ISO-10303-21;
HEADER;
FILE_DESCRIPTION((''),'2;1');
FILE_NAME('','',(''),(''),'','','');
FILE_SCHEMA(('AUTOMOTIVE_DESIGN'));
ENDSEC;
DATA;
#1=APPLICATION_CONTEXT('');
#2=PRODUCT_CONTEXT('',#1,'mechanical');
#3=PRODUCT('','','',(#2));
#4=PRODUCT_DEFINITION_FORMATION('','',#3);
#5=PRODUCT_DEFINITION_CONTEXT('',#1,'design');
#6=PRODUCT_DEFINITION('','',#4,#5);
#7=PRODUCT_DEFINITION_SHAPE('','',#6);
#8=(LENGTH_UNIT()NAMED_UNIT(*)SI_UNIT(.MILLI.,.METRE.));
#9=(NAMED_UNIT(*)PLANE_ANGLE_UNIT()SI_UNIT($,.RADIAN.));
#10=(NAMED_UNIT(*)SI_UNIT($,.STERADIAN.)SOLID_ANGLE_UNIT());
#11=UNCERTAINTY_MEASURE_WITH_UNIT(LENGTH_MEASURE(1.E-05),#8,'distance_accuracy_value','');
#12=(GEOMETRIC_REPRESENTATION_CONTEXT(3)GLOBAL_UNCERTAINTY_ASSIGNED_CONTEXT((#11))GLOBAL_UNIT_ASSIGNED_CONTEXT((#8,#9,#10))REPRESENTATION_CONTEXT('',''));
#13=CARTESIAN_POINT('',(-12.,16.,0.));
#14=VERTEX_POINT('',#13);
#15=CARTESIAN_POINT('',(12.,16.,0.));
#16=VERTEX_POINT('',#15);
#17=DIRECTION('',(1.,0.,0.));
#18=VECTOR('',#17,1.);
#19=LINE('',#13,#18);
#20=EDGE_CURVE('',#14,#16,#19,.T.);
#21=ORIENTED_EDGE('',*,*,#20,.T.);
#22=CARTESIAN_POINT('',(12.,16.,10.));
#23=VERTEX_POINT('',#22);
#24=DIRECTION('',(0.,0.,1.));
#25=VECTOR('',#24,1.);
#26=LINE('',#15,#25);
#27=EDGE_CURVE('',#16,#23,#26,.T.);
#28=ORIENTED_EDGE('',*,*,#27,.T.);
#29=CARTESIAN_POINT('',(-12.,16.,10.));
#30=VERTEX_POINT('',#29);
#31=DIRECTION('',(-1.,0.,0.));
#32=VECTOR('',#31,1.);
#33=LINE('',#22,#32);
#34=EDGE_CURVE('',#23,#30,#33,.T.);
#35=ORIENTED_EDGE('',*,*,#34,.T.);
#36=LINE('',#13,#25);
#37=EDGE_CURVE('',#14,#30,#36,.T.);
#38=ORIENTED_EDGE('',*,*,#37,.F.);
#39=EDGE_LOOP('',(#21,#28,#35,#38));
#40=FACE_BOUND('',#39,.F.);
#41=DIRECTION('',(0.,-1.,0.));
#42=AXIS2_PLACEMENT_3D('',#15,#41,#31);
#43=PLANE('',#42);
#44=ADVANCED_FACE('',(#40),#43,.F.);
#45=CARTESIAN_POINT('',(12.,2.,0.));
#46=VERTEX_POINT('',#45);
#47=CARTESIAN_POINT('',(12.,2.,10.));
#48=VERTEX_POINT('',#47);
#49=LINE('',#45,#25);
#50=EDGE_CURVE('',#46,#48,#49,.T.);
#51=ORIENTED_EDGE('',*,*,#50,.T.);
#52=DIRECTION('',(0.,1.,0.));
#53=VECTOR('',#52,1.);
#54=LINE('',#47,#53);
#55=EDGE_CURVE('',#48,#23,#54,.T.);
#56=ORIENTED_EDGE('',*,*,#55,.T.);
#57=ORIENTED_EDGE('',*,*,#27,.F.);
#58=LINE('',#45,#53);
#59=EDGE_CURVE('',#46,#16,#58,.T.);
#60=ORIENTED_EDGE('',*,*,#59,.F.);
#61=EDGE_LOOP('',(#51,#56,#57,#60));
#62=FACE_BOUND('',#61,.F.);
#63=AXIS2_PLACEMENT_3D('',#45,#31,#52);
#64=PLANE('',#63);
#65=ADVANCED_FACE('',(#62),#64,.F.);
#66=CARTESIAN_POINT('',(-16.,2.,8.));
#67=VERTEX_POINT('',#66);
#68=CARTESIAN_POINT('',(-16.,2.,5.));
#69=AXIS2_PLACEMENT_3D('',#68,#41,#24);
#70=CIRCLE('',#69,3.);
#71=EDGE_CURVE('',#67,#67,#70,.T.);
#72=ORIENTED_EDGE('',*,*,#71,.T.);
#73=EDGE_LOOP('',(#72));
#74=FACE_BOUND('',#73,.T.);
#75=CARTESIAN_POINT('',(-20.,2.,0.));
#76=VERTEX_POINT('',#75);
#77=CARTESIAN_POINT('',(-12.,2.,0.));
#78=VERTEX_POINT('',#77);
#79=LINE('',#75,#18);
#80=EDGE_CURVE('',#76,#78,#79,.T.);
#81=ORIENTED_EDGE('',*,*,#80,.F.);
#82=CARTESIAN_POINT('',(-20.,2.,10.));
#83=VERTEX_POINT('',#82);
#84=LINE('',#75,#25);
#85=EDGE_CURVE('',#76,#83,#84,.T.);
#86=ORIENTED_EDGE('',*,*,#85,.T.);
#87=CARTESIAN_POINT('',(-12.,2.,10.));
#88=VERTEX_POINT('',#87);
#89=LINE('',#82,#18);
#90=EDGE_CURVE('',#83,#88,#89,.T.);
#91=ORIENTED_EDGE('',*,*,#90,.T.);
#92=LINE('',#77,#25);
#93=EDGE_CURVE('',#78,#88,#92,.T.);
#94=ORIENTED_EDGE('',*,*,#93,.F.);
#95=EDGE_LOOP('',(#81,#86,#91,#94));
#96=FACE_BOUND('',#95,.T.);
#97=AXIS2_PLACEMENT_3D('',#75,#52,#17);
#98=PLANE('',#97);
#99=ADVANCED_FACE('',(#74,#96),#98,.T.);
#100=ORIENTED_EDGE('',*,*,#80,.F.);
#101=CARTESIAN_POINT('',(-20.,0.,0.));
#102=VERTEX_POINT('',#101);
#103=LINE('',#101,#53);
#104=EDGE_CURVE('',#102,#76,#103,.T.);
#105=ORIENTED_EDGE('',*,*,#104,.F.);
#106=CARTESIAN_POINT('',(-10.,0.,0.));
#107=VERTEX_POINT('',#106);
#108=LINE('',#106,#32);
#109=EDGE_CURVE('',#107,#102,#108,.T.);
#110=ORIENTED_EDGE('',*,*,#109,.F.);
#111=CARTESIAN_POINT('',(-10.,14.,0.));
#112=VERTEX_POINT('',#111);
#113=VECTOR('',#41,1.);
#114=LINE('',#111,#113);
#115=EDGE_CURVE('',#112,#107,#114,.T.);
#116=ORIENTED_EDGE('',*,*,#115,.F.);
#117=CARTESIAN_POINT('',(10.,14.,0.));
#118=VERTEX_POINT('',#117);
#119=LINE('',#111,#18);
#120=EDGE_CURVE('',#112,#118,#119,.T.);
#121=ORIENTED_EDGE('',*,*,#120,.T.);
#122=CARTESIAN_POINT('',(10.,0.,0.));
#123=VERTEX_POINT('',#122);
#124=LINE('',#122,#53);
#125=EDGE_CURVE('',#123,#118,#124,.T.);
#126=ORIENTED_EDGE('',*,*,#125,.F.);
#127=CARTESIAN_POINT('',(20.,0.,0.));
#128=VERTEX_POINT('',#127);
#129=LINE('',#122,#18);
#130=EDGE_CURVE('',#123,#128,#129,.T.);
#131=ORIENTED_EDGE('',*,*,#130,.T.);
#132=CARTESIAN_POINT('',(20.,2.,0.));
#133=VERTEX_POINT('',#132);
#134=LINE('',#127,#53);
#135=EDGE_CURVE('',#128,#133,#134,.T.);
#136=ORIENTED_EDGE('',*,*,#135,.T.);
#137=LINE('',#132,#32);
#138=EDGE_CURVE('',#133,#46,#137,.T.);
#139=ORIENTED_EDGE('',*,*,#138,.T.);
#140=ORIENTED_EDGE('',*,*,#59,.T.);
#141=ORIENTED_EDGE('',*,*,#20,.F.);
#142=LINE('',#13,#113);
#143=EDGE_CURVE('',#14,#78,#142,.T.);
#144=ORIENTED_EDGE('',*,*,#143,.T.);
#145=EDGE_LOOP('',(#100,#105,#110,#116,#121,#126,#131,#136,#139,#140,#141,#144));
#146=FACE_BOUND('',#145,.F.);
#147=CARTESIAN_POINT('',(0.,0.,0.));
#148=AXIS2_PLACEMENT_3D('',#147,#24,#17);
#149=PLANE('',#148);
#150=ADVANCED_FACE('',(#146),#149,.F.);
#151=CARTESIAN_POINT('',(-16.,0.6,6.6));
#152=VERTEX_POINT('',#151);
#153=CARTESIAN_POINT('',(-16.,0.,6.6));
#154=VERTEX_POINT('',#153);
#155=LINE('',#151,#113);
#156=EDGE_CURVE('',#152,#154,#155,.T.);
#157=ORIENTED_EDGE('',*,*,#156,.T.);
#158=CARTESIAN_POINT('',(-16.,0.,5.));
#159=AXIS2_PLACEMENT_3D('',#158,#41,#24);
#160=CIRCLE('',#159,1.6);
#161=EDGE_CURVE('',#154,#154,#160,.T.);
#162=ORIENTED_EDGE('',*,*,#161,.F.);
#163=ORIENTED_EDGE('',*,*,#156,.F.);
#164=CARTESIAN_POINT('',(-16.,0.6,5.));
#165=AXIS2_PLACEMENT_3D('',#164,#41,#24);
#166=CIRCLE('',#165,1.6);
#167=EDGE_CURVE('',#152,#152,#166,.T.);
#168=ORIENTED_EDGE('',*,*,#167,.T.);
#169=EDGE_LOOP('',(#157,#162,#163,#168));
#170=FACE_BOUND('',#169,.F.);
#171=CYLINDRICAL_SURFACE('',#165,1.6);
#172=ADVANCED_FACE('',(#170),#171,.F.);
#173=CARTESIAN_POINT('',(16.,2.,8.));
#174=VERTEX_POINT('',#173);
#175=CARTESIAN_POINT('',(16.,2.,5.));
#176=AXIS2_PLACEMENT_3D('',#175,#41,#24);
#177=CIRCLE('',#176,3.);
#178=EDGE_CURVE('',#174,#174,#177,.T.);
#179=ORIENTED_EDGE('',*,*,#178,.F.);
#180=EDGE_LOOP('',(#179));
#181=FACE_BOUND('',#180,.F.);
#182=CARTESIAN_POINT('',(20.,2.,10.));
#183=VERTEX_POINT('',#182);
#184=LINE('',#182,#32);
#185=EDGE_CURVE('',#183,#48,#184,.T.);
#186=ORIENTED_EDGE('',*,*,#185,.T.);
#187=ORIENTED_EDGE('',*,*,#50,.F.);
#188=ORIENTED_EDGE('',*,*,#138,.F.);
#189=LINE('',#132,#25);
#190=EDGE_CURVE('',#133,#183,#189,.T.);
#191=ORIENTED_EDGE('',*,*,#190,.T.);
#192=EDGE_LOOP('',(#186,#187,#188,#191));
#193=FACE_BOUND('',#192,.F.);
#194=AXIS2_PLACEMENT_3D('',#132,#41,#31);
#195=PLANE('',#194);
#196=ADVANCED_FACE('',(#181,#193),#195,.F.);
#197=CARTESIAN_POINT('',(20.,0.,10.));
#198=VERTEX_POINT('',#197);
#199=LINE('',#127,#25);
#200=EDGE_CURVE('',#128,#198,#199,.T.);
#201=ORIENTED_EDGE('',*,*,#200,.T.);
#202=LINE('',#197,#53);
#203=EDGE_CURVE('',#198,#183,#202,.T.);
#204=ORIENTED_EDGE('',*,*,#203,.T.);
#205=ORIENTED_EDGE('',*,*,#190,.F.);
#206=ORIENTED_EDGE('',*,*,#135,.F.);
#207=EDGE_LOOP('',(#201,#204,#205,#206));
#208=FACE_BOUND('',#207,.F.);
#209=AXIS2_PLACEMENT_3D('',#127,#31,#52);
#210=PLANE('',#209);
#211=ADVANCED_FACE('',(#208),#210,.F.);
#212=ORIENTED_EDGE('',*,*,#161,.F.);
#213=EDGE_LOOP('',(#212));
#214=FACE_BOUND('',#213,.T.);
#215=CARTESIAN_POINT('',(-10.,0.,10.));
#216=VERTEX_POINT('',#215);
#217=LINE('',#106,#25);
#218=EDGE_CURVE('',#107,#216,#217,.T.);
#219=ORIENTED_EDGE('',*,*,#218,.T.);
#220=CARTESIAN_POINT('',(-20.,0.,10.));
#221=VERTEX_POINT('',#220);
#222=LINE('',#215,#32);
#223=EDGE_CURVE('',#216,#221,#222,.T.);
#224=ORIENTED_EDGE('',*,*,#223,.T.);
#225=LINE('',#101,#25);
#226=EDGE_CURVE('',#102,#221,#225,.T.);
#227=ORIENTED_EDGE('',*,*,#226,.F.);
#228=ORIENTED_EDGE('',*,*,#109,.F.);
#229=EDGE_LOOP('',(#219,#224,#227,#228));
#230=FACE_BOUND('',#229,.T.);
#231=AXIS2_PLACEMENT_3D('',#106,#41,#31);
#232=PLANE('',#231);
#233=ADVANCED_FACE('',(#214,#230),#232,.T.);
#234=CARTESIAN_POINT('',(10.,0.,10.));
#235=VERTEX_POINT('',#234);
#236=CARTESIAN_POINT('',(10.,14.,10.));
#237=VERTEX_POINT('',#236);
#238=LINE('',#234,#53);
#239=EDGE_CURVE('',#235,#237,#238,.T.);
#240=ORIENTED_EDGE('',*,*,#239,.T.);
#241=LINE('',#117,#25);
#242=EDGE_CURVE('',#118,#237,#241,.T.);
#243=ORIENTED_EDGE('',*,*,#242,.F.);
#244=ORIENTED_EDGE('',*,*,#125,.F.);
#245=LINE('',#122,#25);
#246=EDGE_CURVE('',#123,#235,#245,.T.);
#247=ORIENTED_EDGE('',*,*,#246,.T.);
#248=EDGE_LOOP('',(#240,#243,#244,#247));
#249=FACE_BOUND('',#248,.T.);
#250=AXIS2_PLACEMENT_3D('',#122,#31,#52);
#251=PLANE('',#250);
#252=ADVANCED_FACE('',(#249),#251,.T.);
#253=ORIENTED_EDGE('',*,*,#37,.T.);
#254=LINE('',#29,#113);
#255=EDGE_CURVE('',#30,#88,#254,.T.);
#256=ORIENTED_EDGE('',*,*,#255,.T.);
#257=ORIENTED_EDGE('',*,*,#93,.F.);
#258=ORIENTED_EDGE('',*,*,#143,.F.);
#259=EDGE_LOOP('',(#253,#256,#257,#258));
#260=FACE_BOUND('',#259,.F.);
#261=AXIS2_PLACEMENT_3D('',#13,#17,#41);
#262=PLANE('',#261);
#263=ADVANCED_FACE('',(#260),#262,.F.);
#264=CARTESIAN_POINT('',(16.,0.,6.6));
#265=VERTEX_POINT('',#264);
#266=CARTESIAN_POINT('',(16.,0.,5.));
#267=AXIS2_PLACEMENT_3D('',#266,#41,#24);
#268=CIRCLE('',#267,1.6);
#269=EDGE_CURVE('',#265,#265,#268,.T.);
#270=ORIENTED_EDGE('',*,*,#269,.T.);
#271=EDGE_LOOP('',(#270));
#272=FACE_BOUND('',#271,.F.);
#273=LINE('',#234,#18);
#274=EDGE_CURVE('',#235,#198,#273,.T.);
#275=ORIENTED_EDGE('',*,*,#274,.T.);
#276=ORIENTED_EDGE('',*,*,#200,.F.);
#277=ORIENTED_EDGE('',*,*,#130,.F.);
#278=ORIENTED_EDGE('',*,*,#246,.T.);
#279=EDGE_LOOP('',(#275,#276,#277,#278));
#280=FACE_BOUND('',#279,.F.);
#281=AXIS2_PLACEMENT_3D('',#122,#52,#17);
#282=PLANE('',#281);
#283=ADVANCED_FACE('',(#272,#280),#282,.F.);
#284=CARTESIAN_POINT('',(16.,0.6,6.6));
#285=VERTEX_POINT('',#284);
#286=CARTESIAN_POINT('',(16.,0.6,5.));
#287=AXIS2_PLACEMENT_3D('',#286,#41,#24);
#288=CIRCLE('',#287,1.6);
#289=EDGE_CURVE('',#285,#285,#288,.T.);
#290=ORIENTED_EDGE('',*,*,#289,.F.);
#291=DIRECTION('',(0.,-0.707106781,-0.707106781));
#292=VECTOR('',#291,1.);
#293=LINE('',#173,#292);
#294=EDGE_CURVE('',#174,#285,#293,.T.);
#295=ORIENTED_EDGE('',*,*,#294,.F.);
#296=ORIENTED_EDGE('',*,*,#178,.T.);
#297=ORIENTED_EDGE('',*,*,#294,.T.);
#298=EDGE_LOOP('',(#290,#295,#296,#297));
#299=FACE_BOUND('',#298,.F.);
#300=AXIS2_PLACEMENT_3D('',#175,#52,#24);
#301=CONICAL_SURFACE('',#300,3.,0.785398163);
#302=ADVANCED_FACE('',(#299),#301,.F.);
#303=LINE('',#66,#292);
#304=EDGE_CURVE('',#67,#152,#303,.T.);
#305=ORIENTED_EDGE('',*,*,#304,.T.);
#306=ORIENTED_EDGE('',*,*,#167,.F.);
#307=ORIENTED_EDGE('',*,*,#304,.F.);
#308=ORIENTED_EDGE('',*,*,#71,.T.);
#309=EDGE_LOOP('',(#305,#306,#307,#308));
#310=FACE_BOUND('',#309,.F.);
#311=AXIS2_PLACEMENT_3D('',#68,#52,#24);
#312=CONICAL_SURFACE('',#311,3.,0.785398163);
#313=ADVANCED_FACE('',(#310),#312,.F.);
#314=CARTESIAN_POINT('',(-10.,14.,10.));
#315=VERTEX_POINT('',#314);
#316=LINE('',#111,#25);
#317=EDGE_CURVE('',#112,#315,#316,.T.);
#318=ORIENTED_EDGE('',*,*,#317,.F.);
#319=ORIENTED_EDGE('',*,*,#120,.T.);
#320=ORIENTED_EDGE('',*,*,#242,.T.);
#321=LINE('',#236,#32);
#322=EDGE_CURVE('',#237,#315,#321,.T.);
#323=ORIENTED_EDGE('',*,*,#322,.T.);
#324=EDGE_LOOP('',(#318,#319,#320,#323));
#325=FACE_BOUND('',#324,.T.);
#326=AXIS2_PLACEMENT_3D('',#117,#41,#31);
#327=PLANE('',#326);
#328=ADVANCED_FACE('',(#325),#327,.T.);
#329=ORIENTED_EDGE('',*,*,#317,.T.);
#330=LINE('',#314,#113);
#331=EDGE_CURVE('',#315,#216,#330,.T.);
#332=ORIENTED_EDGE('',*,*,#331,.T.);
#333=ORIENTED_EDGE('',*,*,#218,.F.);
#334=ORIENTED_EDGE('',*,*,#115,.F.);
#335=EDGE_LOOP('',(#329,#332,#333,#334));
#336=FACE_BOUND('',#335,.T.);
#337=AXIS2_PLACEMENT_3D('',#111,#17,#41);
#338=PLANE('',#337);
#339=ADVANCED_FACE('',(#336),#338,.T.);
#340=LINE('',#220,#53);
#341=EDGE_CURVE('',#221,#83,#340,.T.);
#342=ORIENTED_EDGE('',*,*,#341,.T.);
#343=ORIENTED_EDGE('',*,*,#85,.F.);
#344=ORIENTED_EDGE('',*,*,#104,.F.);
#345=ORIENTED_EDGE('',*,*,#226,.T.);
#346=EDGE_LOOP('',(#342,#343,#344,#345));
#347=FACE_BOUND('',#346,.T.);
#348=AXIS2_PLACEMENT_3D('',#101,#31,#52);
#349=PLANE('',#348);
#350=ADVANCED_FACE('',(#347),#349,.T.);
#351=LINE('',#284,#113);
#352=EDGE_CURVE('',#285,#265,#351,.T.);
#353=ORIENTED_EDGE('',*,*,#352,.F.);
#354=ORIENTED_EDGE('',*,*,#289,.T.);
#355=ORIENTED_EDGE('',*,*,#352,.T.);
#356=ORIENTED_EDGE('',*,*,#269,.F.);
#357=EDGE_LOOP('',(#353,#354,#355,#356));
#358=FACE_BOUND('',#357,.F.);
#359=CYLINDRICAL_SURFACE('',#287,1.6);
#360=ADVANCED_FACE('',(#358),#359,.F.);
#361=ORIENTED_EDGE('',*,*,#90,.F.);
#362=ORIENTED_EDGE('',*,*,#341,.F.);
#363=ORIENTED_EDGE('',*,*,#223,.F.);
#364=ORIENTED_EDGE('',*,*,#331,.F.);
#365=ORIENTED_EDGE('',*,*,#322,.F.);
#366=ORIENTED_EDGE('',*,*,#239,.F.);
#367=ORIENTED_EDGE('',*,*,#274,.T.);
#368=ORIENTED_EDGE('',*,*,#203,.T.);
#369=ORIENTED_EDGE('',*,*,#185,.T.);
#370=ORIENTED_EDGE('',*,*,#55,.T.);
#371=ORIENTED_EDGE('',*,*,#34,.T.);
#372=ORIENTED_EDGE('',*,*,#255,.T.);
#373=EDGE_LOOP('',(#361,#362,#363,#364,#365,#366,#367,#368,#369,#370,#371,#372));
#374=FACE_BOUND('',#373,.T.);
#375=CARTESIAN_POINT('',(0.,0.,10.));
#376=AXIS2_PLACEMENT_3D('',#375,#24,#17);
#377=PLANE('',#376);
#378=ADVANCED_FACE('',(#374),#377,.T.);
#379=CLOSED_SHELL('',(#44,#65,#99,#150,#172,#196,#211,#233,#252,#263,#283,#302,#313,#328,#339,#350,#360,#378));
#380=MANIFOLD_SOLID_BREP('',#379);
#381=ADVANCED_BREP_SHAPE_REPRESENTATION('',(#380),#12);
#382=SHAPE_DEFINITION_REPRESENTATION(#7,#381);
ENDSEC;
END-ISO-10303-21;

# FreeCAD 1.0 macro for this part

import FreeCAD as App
import Part
import Sketcher
Q = App.Units.Quantity

doc = App.newDocument("Part")
body = doc.addObject("PartDesign::Body", "Body")

sketch1 = body.newObject("Sketcher::SketchObject", "Sketch")
sketch1.AttachmentSupport = (doc.getObject("XY_Plane"), [""])
sketch1.MapMode = "FlatFace"
sketch1.addGeometry(Part.LineSegment(App.Vector(10, 14, 0), App.Vector(10, 0, 0)), False)
sketch1.addGeometry(Part.LineSegment(App.Vector(10, 0, 0), App.Vector(20, 0, 0)), False)
sketch1.addGeometry(Part.LineSegment(App.Vector(20, 0, 0), App.Vector(20, 2, 0)), False)
sketch1.addGeometry(Part.LineSegment(App.Vector(20, 2, 0), App.Vector(12, 2, 0)), False)
sketch1.addGeometry(Part.LineSegment(App.Vector(12, 2, 0), App.Vector(12, 16, 0)), False)
sketch1.addGeometry(Part.LineSegment(App.Vector(12, 16, 0), App.Vector(-12, 16, 0)), False)
sketch1.addGeometry(Part.LineSegment(App.Vector(-12, 16, 0), App.Vector(-12, 2, 0)), False)
sketch1.addGeometry(Part.LineSegment(App.Vector(-12, 2, 0), App.Vector(-20, 2, 0)), False)
sketch1.addGeometry(Part.LineSegment(App.Vector(-20, 2, 0), App.Vector(-20, 0, 0)), False)
sketch1.addGeometry(Part.LineSegment(App.Vector(-20, 0, 0), App.Vector(-10, 0, 0)), False)
sketch1.addGeometry(Part.LineSegment(App.Vector(-10, 0, 0), App.Vector(-10, 14, 0)), False)
sketch1.addGeometry(Part.LineSegment(App.Vector(-10, 14, 0), App.Vector(10, 14, 0)), False)
sketch1.addConstraint(Sketcher.Constraint("Coincident", 0, 2, 1, 1))
sketch1.addConstraint(Sketcher.Constraint("Coincident", 1, 2, 2, 1))
sketch1.addConstraint(Sketcher.Constraint("Coincident", 2, 2, 3, 1))
sketch1.addConstraint(Sketcher.Constraint("Coincident", 3, 2, 4, 1))
sketch1.addConstraint(Sketcher.Constraint("Coincident", 4, 2, 5, 1))
sketch1.addConstraint(Sketcher.Constraint("Coincident", 5, 2, 6, 1))
sketch1.addConstraint(Sketcher.Constraint("Coincident", 6, 2, 7, 1))
sketch1.addConstraint(Sketcher.Constraint("Coincident", 7, 2, 8, 1))
sketch1.addConstraint(Sketcher.Constraint("Coincident", 8, 2, 9, 1))
sketch1.addConstraint(Sketcher.Constraint("Coincident", 9, 2, 10, 1))
sketch1.addConstraint(Sketcher.Constraint("Coincident", 10, 2, 11, 1))
sketch1.addConstraint(Sketcher.Constraint("Coincident", 11, 2, 0, 1))
sketch1.addConstraint(Sketcher.Constraint("Vertical", 0))
sketch1.addConstraint(Sketcher.Constraint("Horizontal", 1))
sketch1.addConstraint(Sketcher.Constraint("Vertical", 2))
sketch1.addConstraint(Sketcher.Constraint("Horizontal", 3))
sketch1.addConstraint(Sketcher.Constraint("Vertical", 4))
sketch1.addConstraint(Sketcher.Constraint("Horizontal", 5))
sketch1.addConstraint(Sketcher.Constraint("Vertical", 6))
sketch1.addConstraint(Sketcher.Constraint("Horizontal", 7))
sketch1.addConstraint(Sketcher.Constraint("Vertical", 8))
sketch1.addConstraint(Sketcher.Constraint("Horizontal", 9))
sketch1.addConstraint(Sketcher.Constraint("Vertical", 10))
sketch1.addConstraint(Sketcher.Constraint("Horizontal", 11))
sketch1.addConstraint(Sketcher.Constraint("Symmetric", 1, 2, 8, 2, -1, 1))
sketch1.addConstraint(Sketcher.Constraint("Symmetric", 3, 2, 6, 2, -2))
sketch1.addConstraint(Sketcher.Constraint("Symmetric", 0, 2, 9, 2, -2))
sketch1.addConstraint(Sketcher.Constraint("Equal", 0, 4))
sketch1.addConstraint(Sketcher.Constraint("DistanceX", 1, 1, 1, 2, Q("10 mm")))
sketch1.addConstraint(Sketcher.Constraint("DistanceX", 11, 1, 11, 2, Q("20 mm")))
sketch1.addConstraint(Sketcher.Constraint("DistanceY", 0, 2, 0, 1, Q("14 mm")))
sketch1.addConstraint(Sketcher.Constraint("DistanceY", 2, 1, 2, 2, Q("2 mm")))
sketch1.addConstraint(Sketcher.Constraint("DistanceX", 0, 2, 3, 2, Q("2 mm")))
pad1 = body.newObject("PartDesign::Pad", "Pad")
pad1.Profile = sketch1
pad1.Length = 10

sketch2 = body.newObject("Sketcher::SketchObject", "Sketch001")
sketch2.AttachmentSupport = (doc.getObject("XZ_Plane"), [""])
sketch2.MapMode = "FlatFace"
sketch2.AttachmentOffset = App.Placement(App.Vector(0, 0, -2), App.Rotation())
sketch2.addGeometry(Part.Circle(App.Vector(-16, 5, 0), App.Vector(0, 0, 1), 1.6), False)
sketch2.addGeometry(Part.Circle(App.Vector(16, 5, 0), App.Vector(0, 0, 1), 1.6), False)
sketch2.addConstraint(Sketcher.Constraint("Equal", 0, 1))
sketch2.addConstraint(Sketcher.Constraint("Symmetric", 0, 3, 1, 3, -2))
sketch2.addConstraint(Sketcher.Constraint("Diameter", 0, Q("3.2 mm")))
sketch2.addConstraint(Sketcher.Constraint("DistanceX", 0, 3, -1, 1, Q("16 mm")))
sketch2.addConstraint(Sketcher.Constraint("DistanceY", -1, 1, 0, 3, Q("5 mm")))
doc.recompute()
hole = body.newObject("PartDesign::Hole", "Hole")
hole.Profile = sketch2
hole.ThreadType = "None"
hole.Diameter = 3.2
hole.DepthType = "ThroughAll"
hole.HoleCutType = "Countersink"
hole.HoleCutDiameter = 6
hole.HoleCutCountersinkAngle = 90
hole.Reversed = True

doc.recompute()
